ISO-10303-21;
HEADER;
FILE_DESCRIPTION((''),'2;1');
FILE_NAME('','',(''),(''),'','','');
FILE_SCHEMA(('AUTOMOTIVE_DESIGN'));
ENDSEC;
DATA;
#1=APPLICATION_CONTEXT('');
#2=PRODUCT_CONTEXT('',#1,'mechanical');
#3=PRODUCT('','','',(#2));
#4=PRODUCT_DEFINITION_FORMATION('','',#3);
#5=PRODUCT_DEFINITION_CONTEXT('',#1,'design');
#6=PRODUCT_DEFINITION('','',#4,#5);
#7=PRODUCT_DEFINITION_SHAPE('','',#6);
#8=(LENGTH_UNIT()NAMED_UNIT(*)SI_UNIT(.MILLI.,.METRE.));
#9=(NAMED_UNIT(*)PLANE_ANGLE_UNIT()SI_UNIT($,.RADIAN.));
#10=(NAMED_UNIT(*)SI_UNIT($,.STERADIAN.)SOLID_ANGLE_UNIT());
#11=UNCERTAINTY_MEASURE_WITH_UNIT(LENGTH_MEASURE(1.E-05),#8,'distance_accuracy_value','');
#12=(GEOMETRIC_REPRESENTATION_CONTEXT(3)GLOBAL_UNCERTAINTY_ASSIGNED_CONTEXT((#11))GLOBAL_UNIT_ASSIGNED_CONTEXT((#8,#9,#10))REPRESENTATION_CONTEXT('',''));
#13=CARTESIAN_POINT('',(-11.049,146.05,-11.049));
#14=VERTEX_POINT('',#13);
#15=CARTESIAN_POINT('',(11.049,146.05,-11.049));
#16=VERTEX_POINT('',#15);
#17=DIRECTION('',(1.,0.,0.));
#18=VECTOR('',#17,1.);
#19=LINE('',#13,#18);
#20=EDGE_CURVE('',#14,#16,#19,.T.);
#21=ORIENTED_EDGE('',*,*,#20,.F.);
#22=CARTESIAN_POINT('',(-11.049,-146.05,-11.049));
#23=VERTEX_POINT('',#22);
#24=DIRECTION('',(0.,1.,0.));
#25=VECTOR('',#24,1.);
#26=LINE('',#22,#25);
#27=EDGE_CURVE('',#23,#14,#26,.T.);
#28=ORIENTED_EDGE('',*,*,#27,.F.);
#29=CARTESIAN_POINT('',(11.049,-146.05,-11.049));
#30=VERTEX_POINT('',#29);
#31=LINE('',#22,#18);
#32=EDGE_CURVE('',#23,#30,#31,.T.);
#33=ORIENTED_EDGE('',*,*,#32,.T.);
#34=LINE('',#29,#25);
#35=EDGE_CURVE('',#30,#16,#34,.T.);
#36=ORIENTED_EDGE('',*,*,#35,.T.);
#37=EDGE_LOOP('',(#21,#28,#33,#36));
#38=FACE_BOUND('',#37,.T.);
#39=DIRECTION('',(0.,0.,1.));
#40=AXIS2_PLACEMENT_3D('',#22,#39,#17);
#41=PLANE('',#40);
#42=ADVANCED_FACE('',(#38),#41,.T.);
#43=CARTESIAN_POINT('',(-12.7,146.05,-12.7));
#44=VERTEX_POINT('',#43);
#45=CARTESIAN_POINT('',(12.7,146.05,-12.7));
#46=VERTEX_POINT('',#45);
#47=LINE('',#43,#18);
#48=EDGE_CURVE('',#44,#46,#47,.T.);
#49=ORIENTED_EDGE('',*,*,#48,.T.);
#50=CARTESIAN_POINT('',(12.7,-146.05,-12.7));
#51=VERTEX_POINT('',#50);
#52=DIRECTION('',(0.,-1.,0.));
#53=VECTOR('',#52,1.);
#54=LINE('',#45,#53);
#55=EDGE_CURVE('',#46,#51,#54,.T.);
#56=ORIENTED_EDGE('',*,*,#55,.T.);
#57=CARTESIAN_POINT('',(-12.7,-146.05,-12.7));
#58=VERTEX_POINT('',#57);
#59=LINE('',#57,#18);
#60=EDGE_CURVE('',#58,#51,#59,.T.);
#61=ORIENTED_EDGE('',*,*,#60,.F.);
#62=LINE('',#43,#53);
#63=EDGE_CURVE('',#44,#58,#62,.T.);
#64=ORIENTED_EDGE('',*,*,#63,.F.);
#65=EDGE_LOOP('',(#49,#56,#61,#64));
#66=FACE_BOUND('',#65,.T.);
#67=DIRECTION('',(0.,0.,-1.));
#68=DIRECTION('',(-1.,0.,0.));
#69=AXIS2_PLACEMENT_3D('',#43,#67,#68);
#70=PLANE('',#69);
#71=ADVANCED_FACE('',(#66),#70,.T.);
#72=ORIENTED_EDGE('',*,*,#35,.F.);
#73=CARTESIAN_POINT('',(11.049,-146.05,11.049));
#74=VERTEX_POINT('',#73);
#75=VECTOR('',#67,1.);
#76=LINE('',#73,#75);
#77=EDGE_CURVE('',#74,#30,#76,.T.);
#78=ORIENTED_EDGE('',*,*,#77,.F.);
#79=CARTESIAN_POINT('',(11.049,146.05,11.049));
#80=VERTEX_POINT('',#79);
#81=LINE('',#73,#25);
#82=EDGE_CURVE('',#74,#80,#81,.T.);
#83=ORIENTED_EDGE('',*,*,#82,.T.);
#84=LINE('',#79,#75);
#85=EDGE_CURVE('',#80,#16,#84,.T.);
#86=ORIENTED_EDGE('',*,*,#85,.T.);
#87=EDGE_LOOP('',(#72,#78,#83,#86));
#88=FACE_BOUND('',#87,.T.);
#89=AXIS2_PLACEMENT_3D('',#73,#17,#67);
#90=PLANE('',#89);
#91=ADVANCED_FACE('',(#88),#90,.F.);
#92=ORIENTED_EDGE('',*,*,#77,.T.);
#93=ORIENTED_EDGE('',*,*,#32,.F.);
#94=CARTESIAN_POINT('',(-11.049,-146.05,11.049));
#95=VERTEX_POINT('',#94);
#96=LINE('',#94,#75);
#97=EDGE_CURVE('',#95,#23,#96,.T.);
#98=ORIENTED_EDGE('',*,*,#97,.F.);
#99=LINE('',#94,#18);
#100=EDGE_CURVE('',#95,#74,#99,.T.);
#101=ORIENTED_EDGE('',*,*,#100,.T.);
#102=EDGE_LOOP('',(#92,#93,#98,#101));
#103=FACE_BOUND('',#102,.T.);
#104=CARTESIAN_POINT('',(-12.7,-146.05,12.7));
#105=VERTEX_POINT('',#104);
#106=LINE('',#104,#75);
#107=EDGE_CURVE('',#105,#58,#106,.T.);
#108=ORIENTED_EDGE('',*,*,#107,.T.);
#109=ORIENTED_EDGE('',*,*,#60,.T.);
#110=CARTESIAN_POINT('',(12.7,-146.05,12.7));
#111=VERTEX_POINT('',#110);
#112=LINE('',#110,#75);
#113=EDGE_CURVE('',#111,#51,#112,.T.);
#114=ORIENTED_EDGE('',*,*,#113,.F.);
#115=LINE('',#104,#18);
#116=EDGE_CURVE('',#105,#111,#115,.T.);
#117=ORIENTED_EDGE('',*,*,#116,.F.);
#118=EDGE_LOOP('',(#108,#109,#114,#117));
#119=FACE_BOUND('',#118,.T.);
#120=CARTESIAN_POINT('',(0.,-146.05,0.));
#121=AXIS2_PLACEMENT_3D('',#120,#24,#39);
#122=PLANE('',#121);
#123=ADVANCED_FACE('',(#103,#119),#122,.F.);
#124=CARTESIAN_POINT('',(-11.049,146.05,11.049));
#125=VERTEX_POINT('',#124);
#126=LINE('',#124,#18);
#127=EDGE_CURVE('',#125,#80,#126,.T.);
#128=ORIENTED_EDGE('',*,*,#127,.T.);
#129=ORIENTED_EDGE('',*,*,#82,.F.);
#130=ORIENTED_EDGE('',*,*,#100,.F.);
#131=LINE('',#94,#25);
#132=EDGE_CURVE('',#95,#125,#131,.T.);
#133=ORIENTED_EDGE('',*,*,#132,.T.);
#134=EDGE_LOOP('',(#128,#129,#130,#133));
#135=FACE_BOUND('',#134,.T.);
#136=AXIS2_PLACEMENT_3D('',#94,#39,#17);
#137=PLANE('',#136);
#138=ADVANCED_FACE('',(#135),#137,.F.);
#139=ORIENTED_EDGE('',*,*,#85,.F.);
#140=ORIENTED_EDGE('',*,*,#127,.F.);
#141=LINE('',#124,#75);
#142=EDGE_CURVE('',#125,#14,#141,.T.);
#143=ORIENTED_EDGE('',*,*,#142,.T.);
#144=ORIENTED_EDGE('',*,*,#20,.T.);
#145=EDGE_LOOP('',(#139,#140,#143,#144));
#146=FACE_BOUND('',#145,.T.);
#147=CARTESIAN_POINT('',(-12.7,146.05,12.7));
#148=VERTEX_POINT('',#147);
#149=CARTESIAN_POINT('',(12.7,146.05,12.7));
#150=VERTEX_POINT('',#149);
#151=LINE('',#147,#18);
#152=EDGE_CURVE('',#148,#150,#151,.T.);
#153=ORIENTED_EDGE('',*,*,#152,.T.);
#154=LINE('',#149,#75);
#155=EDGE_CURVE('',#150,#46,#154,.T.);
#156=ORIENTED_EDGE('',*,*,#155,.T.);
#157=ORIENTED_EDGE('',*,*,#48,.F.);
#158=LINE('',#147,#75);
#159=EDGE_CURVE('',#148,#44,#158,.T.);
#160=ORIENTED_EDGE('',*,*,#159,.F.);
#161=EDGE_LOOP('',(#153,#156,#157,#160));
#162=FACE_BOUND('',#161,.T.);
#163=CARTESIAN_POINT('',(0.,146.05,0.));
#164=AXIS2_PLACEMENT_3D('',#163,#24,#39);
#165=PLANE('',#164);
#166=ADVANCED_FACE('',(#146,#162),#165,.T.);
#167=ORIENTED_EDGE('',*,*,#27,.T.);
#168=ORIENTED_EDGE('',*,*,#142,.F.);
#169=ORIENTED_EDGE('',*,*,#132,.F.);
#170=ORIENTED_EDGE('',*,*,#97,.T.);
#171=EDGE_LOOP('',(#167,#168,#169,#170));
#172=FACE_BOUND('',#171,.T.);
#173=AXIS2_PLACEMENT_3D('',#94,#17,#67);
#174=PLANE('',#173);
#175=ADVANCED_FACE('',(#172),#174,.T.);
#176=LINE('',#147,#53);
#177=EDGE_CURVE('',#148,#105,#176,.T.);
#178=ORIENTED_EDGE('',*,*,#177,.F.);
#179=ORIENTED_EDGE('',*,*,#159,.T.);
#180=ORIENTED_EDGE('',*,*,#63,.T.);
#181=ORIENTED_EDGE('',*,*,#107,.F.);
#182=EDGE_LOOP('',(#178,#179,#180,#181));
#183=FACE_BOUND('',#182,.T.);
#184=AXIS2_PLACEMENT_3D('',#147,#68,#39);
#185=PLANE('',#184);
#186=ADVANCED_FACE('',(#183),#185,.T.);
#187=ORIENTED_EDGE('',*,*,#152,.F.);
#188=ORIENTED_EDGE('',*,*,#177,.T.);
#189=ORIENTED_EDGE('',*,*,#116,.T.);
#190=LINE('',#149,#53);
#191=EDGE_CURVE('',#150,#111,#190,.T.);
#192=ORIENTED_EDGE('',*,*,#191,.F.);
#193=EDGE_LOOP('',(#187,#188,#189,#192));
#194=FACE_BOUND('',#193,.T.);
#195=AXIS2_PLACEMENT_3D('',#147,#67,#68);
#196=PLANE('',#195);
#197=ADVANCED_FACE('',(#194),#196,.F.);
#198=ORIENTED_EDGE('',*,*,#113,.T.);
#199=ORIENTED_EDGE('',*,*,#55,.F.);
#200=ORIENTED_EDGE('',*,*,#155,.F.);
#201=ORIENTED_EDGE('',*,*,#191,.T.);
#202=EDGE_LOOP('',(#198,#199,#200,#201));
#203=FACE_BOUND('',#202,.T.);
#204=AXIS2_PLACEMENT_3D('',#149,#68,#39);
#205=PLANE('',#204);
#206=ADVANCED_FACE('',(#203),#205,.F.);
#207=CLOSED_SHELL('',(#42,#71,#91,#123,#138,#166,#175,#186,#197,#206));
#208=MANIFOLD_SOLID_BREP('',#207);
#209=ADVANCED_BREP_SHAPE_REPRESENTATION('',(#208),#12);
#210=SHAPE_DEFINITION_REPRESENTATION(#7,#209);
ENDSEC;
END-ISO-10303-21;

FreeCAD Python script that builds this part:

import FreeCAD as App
import Part
import Sketcher
from FreeCAD import Vector
Q = App.Units.Quantity

doc = App.newDocument("Part")
body = doc.addObject("PartDesign::Body", "Body")

sketch1 = body.newObject("Sketcher::SketchObject", "Sketch")
sketch1.AttachmentSupport = (doc.getObject("XZ_Plane"), [""])
sketch1.MapMode = "FlatFace"
sketch1.addGeometry(Part.LineSegment(Vector(-13, -13, 0), Vector(-13, 13, 0)), False)
sketch1.addGeometry(Part.LineSegment(Vector(-13, 13, 0), Vector(13, 13, 0)), False)
sketch1.addGeometry(Part.LineSegment(Vector(13, 13, 0), Vector(13, -13, 0)), False)
sketch1.addGeometry(Part.LineSegment(Vector(13, -13, 0), Vector(-13, -13, 0)), False)
sketch1.addConstraint(Sketcher.Constraint("Coincident", 0, 2, 1, 1))
sketch1.addConstraint(Sketcher.Constraint("Coincident", 1, 2, 2, 1))
sketch1.addConstraint(Sketcher.Constraint("Coincident", 2, 2, 3, 1))
sketch1.addConstraint(Sketcher.Constraint("Coincident", 3, 2, 0, 1))
sketch1.addConstraint(Sketcher.Constraint("Vertical", 0))
sketch1.addConstraint(Sketcher.Constraint("Horizontal", 1))
sketch1.addConstraint(Sketcher.Constraint("Vertical", 2))
sketch1.addConstraint(Sketcher.Constraint("Horizontal", 3))
sketch1.addConstraint(Sketcher.Constraint("Symmetric", 0, 2, 2, 2, -1, 1))
sketch1.addConstraint(Sketcher.Constraint("Equal", 3, 0))
sketch1.addConstraint(Sketcher.Constraint("DistanceX", 1, 1, 1, 2, Q("1 in")))
pad1 = body.newObject("PartDesign::Pad", "Pad")
pad1.Profile = sketch1
pad1.Length = Q("11.5 in")
pad1.Midplane = True

sketch2 = body.newObject("Sketcher::SketchObject", "Sketch001")
sketch2.AttachmentSupport = (doc.getObject("XZ_Plane"), [""])
sketch2.MapMode = "FlatFace"
sketch2.AttachmentOffset = App.Placement(Vector(0, 0, -5.75 * 25.4), App.Rotation())
sketch2.addGeometry(Part.LineSegment(Vector(-11, -11, 0), Vector(-11, 11, 0)), False)
sketch2.addGeometry(Part.LineSegment(Vector(-11, 11, 0), Vector(11, 11, 0)), False)
sketch2.addGeometry(Part.LineSegment(Vector(11, 11, 0), Vector(11, -11, 0)), False)
sketch2.addGeometry(Part.LineSegment(Vector(11, -11, 0), Vector(-11, -11, 0)), False)
sketch2.addConstraint(Sketcher.Constraint("Coincident", 0, 2, 1, 1))
sketch2.addConstraint(Sketcher.Constraint("Coincident", 1, 2, 2, 1))
sketch2.addConstraint(Sketcher.Constraint("Coincident", 2, 2, 3, 1))
sketch2.addConstraint(Sketcher.Constraint("Coincident", 3, 2, 0, 1))
sketch2.addConstraint(Sketcher.Constraint("Vertical", 0))
sketch2.addConstraint(Sketcher.Constraint("Horizontal", 1))
sketch2.addConstraint(Sketcher.Constraint("Vertical", 2))
sketch2.addConstraint(Sketcher.Constraint("Horizontal", 3))
sketch2.addConstraint(Sketcher.Constraint("Symmetric", 0, 2, 2, 2, -1, 1))
sketch2.addConstraint(Sketcher.Constraint("Equal", 3, 0))
sketch2.addConstraint(Sketcher.Constraint("DistanceX", 1, 1, 1, 2, Q("0.87 in")))
pocket1 = body.newObject("PartDesign::Pocket", "Pocket")
pocket1.Profile = sketch2
pocket1.Type = "ThroughAll"
pocket1.Reversed = True

doc.recompute()
